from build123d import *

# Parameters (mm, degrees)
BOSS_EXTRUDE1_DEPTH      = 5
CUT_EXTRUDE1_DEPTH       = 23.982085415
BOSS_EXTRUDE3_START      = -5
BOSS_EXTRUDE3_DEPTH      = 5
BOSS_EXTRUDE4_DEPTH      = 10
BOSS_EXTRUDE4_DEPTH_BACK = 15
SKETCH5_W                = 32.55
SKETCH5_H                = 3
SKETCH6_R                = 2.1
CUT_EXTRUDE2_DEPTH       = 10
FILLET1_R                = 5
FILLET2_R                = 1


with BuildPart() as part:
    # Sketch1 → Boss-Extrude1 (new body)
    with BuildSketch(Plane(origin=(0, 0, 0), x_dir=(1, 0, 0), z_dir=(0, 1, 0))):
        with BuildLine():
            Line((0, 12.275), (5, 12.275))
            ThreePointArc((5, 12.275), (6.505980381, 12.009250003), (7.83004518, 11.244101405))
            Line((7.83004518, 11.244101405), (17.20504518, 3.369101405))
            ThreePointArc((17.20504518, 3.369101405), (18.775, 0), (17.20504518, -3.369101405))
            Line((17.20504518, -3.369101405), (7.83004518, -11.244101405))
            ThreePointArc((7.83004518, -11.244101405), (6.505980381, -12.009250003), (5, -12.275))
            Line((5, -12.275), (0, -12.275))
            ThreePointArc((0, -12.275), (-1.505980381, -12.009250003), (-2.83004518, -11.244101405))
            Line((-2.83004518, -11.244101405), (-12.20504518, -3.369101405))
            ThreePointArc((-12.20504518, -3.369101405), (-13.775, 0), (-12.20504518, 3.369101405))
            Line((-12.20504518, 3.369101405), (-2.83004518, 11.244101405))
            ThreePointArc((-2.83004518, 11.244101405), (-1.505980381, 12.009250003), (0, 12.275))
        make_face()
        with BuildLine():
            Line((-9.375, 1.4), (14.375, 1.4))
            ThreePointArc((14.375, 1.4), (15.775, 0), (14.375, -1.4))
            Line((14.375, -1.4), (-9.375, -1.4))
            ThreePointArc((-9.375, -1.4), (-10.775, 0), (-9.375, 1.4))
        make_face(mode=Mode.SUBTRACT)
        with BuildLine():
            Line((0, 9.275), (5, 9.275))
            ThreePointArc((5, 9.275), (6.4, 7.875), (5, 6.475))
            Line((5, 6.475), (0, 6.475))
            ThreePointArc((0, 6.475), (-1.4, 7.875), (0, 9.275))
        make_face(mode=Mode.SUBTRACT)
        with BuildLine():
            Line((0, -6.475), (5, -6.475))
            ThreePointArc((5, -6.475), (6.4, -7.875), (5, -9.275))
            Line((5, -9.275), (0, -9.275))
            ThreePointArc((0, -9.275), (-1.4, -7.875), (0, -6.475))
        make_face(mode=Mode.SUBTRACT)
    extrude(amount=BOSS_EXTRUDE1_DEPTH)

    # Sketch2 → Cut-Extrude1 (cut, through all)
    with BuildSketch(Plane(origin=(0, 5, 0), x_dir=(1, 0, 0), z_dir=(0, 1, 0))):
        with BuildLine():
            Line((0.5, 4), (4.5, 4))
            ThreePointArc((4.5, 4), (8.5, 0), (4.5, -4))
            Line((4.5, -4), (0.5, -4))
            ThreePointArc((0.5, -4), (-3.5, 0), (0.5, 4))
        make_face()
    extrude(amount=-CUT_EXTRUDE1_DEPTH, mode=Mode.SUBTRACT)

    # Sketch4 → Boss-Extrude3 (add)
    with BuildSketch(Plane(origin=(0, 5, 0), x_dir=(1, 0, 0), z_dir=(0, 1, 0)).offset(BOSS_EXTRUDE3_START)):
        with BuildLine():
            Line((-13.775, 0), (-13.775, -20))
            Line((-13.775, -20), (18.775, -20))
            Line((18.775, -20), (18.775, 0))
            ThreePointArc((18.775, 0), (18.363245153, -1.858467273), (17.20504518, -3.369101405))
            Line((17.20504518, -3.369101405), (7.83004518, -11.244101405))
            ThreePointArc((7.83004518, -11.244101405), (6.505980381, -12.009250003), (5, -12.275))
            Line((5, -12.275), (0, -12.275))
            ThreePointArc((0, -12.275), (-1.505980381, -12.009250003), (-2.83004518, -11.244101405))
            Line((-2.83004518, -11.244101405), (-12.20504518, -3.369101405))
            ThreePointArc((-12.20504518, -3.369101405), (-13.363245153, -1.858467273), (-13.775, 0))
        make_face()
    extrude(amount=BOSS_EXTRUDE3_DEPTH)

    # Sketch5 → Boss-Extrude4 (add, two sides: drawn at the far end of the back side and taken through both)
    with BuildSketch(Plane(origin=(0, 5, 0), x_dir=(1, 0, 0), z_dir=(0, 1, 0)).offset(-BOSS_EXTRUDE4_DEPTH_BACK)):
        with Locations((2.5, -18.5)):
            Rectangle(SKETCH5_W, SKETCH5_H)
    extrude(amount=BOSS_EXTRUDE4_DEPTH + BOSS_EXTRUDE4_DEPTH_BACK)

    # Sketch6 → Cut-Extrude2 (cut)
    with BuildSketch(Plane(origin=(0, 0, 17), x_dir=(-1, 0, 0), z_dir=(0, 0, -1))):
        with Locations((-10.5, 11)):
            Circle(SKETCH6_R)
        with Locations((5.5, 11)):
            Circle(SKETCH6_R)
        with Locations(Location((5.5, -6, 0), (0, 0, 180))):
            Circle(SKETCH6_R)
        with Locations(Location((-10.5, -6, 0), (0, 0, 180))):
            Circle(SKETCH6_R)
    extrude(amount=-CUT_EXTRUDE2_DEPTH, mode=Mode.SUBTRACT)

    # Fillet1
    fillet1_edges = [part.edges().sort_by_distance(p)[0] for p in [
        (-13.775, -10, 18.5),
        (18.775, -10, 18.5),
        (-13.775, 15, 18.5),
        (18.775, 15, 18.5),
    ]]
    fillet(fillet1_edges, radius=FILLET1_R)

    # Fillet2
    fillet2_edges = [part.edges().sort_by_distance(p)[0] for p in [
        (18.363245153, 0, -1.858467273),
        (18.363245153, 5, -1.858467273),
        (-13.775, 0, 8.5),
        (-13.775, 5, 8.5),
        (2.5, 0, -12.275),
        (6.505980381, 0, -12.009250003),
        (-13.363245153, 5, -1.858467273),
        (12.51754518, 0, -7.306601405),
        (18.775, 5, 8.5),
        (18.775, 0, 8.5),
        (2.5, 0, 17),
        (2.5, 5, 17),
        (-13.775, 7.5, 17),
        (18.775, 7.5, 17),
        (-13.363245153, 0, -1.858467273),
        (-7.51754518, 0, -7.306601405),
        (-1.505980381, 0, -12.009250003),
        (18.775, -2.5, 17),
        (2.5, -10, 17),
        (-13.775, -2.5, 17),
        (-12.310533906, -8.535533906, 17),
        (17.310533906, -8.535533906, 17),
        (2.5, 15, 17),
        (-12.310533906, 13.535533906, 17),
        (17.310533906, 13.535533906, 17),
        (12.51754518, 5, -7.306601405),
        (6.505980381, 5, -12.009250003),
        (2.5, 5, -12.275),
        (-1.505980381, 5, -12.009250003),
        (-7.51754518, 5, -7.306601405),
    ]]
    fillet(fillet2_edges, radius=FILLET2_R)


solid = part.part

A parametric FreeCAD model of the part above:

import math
import FreeCAD as App
import Part
import Sketcher


def edges_at(feature, points):
    """Names of the edges that pass closest to the given points."""
    edges = feature.Shape.Edges
    near = lambda p: min(range(len(edges)), key=lambda i: edges[i].distToShape(Part.Vertex(*p))[0])
    return sorted({f"Edge{near(p) + 1}" for p in points})

doc = App.newDocument("Part")
body = doc.addObject("PartDesign::Body", "Body")

# Sketch on XZ plane
sketch1 = doc.addObject("Sketcher::SketchObject", "Sketch")
body.addObject(sketch1)
sketch1.AttachmentSupport = (doc.XZ_Plane, [""])
sketch1.MapMode = "FlatFace"
sketch1.addGeometry([
    Part.LineSegment(App.Vector(5, -12.3, 0), App.Vector(0, -12.3, 0)),  # 0
    Part.ArcOfCircle(Part.Circle(App.Vector(0, -7.9, 0), App.Vector(0, 0, 1), 4.4), math.radians(-130), math.radians(-90)),  # 1
    Part.LineSegment(App.Vector(-2.8, -11.2, 0), App.Vector(-12.2, -3.4, 0)),  # 2
    Part.ArcOfCircle(Part.Circle(App.Vector(-9.4, 0, 0), App.Vector(0, 0, 1), 4.4), math.radians(130), math.radians(230)),  # 3
    Part.LineSegment(App.Vector(-12.2, 3.4, 0), App.Vector(-2.8, 11.2, 0)),  # 4
    Part.ArcOfCircle(Part.Circle(App.Vector(0, 7.9, 0), App.Vector(0, 0, 1), 4.4), math.radians(90), math.radians(130)),  # 5
    Part.LineSegment(App.Vector(0, 12.3, 0), App.Vector(5, 12.3, 0)),  # 6
    Part.ArcOfCircle(Part.Circle(App.Vector(5, 7.9, 0), App.Vector(0, 0, 1), 4.4), math.radians(50), math.radians(90)),  # 7
    Part.LineSegment(App.Vector(7.8, 11.2, 0), App.Vector(17.2, 3.4, 0)),  # 8
    Part.ArcOfCircle(Part.Circle(App.Vector(14.4, 0, 0), App.Vector(0, 0, 1), 4.4), math.radians(-50), math.radians(50)),  # 9
    Part.LineSegment(App.Vector(17.2, -3.4, 0), App.Vector(7.8, -11.2, 0)),  # 10
    Part.ArcOfCircle(Part.Circle(App.Vector(5, -7.9, 0), App.Vector(0, 0, 1), 4.4), math.radians(-90), math.radians(-50)),  # 11
    Part.LineSegment(App.Vector(0, 6.5, 0), App.Vector(5, 6.5, 0)),  # 12
    Part.ArcOfCircle(Part.Circle(App.Vector(5, 7.9, 0), App.Vector(0, 0, 1), 1.4), math.radians(-90), math.radians(90)),  # 13
    Part.LineSegment(App.Vector(5, 9.3, 0), App.Vector(0, 9.3, 0)),  # 14
    Part.ArcOfCircle(Part.Circle(App.Vector(0, 7.9, 0), App.Vector(0, 0, 1), 1.4), math.radians(90), math.radians(270)),  # 15
    Part.LineSegment(App.Vector(-9.4, -1.4, 0), App.Vector(14.4, -1.4, 0)),  # 16
    Part.ArcOfCircle(Part.Circle(App.Vector(14.4, 0, 0), App.Vector(0, 0, 1), 1.4), math.radians(-90), math.radians(90)),  # 17
    Part.LineSegment(App.Vector(14.4, 1.4, 0), App.Vector(-9.4, 1.4, 0)),  # 18
    Part.ArcOfCircle(Part.Circle(App.Vector(-9.4, 0, 0), App.Vector(0, 0, 1), 1.4), math.radians(90), math.radians(270)),  # 19
    Part.LineSegment(App.Vector(0, -9.3, 0), App.Vector(5, -9.3, 0)),  # 20
    Part.ArcOfCircle(Part.Circle(App.Vector(5, -7.9, 0), App.Vector(0, 0, 1), 1.4), math.radians(-90), math.radians(90)),  # 21
    Part.LineSegment(App.Vector(5, -6.5, 0), App.Vector(0, -6.5, 0)),  # 22
    Part.ArcOfCircle(Part.Circle(App.Vector(0, -7.9, 0), App.Vector(0, 0, 1), 1.4), math.radians(90), math.radians(270)),  # 23
], False)
sketch1.addConstraint([
    Sketcher.Constraint("Tangent", 0, 2, 1, 2),
    Sketcher.Constraint("Tangent", 1, 1, 2, 1),
    Sketcher.Constraint("Tangent", 2, 2, 3, 2),
    Sketcher.Constraint("Tangent", 3, 1, 4, 1),
    Sketcher.Constraint("Tangent", 4, 2, 5, 2),
    Sketcher.Constraint("Tangent", 5, 1, 6, 1),
    Sketcher.Constraint("Tangent", 6, 2, 7, 2),
    Sketcher.Constraint("Tangent", 7, 1, 8, 1),
    Sketcher.Constraint("Tangent", 8, 2, 9, 2),
    Sketcher.Constraint("Tangent", 9, 1, 10, 1),
    Sketcher.Constraint("Tangent", 10, 2, 11, 2),
    Sketcher.Constraint("Tangent", 11, 1, 0, 1),
    Sketcher.Constraint("Tangent", 12, 2, 13, 1),
    Sketcher.Constraint("Tangent", 13, 2, 14, 1),
    Sketcher.Constraint("Tangent", 14, 2, 15, 1),
    Sketcher.Constraint("Tangent", 15, 2, 12, 1),
    Sketcher.Constraint("Tangent", 16, 2, 17, 1),
    Sketcher.Constraint("Tangent", 17, 2, 18, 1),
    Sketcher.Constraint("Tangent", 18, 2, 19, 1),
    Sketcher.Constraint("Tangent", 19, 2, 16, 1),
    Sketcher.Constraint("Tangent", 20, 2, 21, 1),
    Sketcher.Constraint("Tangent", 21, 2, 22, 1),
    Sketcher.Constraint("Tangent", 22, 2, 23, 1),
    Sketcher.Constraint("Tangent", 23, 2, 20, 1),
    Sketcher.Constraint("Horizontal", 0),
    Sketcher.Constraint("Horizontal", 6),
    Sketcher.Constraint("Horizontal", 12),
    Sketcher.Constraint("Horizontal", 14),
    Sketcher.Constraint("Horizontal", 16),
    Sketcher.Constraint("Horizontal", 18),
    Sketcher.Constraint("Horizontal", 20),
    Sketcher.Constraint("Horizontal", 22),
    Sketcher.Constraint("Coincident", 13, 3, 7, 3),
    Sketcher.Constraint("Coincident", 15, 3, 5, 3),
    Sketcher.Constraint("Coincident", 17, 3, 9, 3),
    Sketcher.Constraint("Coincident", 19, 3, 3, 3),
    Sketcher.Constraint("Coincident", 21, 3, 11, 3),
    Sketcher.Constraint("Coincident", 23, 3, 1, 3),
    Sketcher.Constraint("Equal", 1, 3),
    Sketcher.Constraint("Equal", 3, 5),
    Sketcher.Constraint("Equal", 7, 9),
    Sketcher.Constraint("Equal", 15, 17),
    Sketcher.Constraint("Equal", 19, 21),
    Sketcher.Constraint("Symmetric", 1, 3, 5, 3, -1, 1),
    Sketcher.Constraint("Symmetric", 2, 2, 3, 1, -1),
    Sketcher.Constraint("Parallel", 2, 8),
    Sketcher.Constraint("Parallel", 4, 10),
    Sketcher.Constraint("Radius", 1, 4.4),
    Sketcher.Constraint("Radius", 13, 1.4),
    Sketcher.Constraint("DistanceX", 0, 2, 0, 1, 5.0),
    Sketcher.Constraint("DistanceX", 16, 1, 16, 2, 23.75),
    Sketcher.Constraint("DistanceY", 1, 3, 5, 3, 15.75),
])
pad1 = doc.addObject("PartDesign::Pad", "Pad")
body.addObject(pad1)
pad1.Profile = sketch1
pad1.Length = 5
pad1.Reversed = True

# Sketch on XZ plane
sketch2 = doc.addObject("Sketcher::SketchObject", "Sketch001")
body.addObject(sketch2)
sketch2.AttachmentSupport = (doc.XZ_Plane, [""])
sketch2.MapMode = "FlatFace"
sketch2.AttachmentOffset = App.Placement(App.Vector(0, 0, -5), App.Rotation())
sketch2.addGeometry([
    Part.LineSegment(App.Vector(4.5, -4, 0), App.Vector(0.5, -4, 0)),
    Part.ArcOfCircle(Part.Circle(App.Vector(0.5, 0, 0), App.Vector(0, 0, 1), 4), math.radians(90), math.radians(270)),
    Part.LineSegment(App.Vector(0.5, 4, 0), App.Vector(4.5, 4, 0)),
    Part.ArcOfCircle(Part.Circle(App.Vector(4.5, 0, 0), App.Vector(0, 0, 1), 4), math.radians(-90), math.radians(90)),
], False)
sketch2.addConstraint([
    Sketcher.Constraint("Tangent", 0, 2, 1, 2),
    Sketcher.Constraint("Tangent", 1, 1, 2, 1),
    Sketcher.Constraint("Tangent", 2, 2, 3, 2),
    Sketcher.Constraint("Tangent", 3, 1, 0, 1),
    Sketcher.Constraint("Horizontal", 0),
    Sketcher.Constraint("Horizontal", 2),
    Sketcher.Constraint("PointOnObject", 1, 3, -1),
    Sketcher.Constraint("Radius", 1, 4.0),
    Sketcher.Constraint("DistanceX", 0, 2, 0, 1, 4.0),
    Sketcher.Constraint("DistanceX", -1, 1, 1, 3, 0.5),
])
pocket1 = doc.addObject("PartDesign::Pocket", "Pocket")
body.addObject(pocket1)
pocket1.Profile = sketch2
pocket1.Type = "ThroughAll"
pocket1.Reversed = True

# Sketch on XZ plane
sketch3 = doc.addObject("Sketcher::SketchObject", "Sketch002")
body.addObject(sketch3)
sketch3.AttachmentSupport = (doc.XZ_Plane, [""])
sketch3.MapMode = "FlatFace"
sketch3.addGeometry([
    Part.LineSegment(App.Vector(-13.8, 0, 0), App.Vector(-13.8, 20, 0)),  # 0
    Part.LineSegment(App.Vector(-13.8, 20, 0), App.Vector(18.8, 20, 0)),  # 1
    Part.LineSegment(App.Vector(18.8, 20, 0), App.Vector(18.8, 0, 0)),  # 2
    Part.ArcOfCircle(Part.Circle(App.Vector(14.4, 0, 0), App.Vector(0, 0, 1), 4.4), math.radians(0), math.radians(50)),  # 3
    Part.LineSegment(App.Vector(17.2, 3.4, 0), App.Vector(7.8, 11.2, 0)),  # 4
    Part.ArcOfCircle(Part.Circle(App.Vector(5, 7.9, 0), App.Vector(0, 0, 1), 4.4), math.radians(50), math.radians(90)),  # 5
    Part.LineSegment(App.Vector(5, 12.3, 0), App.Vector(0, 12.3, 0)),  # 6
    Part.ArcOfCircle(Part.Circle(App.Vector(0, 7.9, 0), App.Vector(0, 0, 1), 4.4), math.radians(90), math.radians(130)),  # 7
    Part.LineSegment(App.Vector(-2.8, 11.2, 0), App.Vector(-12.2, 3.4, 0)),  # 8
    Part.ArcOfCircle(Part.Circle(App.Vector(-9.4, 0, 0), App.Vector(0, 0, 1), 4.4), math.radians(130), math.radians(180)),  # 9
], False)
sketch3.addConstraint([
    Sketcher.Constraint("Coincident", 0, 2, 1, 1),
    Sketcher.Constraint("Coincident", 1, 2, 2, 1),
    Sketcher.Constraint("Tangent", 2, 2, 3, 1),
    Sketcher.Constraint("Tangent", 3, 2, 4, 1),
    Sketcher.Constraint("Tangent", 4, 2, 5, 1),
    Sketcher.Constraint("Tangent", 5, 2, 6, 1),
    Sketcher.Constraint("Tangent", 6, 2, 7, 1),
    Sketcher.Constraint("Tangent", 7, 2, 8, 1),
    Sketcher.Constraint("Tangent", 8, 2, 9, 1),
    Sketcher.Constraint("Tangent", 9, 2, 0, 1),
    Sketcher.Constraint("Vertical", 0),
    Sketcher.Constraint("Horizontal", 1),
    Sketcher.Constraint("Vertical", 2),
    Sketcher.Constraint("Horizontal", 6),
    Sketcher.Constraint("Equal", 3, 5),
    Sketcher.Constraint("Equal", 5, 7),
    Sketcher.Constraint("Equal", 7, 9),
    Sketcher.Constraint("PointOnObject", 3, 3, -1),
    Sketcher.Constraint("PointOnObject", 7, 3, -2),
    Sketcher.Constraint("PointOnObject", 9, 3, -1),
    Sketcher.Constraint("Horizontal", 4, 2, 7, 2),
    Sketcher.Constraint("Radius", 3, 4.4),
    Sketcher.Constraint("DistanceX", 6, 2, 6, 1, 5.0),
    Sketcher.Constraint("DistanceY", 0, 1, 0, 2, 20.0),
    Sketcher.Constraint("DistanceX", 1, 1, 1, 2, 32.55),
    Sketcher.Constraint("DistanceY", -1, 1, 5, 3, 7.875),
])
pad2 = doc.addObject("PartDesign::Pad", "Pad001")
body.addObject(pad2)
pad2.Profile = sketch3
pad2.Length = 5
pad2.Reversed = True

# Sketch on XZ plane
sketch4 = doc.addObject("Sketcher::SketchObject", "Sketch003")
body.addObject(sketch4)
sketch4.AttachmentSupport = (doc.XZ_Plane, [""])
sketch4.MapMode = "FlatFace"
sketch4.AttachmentOffset = App.Placement(App.Vector(0, 0, -5), App.Rotation())
sketch4.addGeometry([
    Part.LineSegment(App.Vector(-13.8, 17, 0), App.Vector(-13.8, 20, 0)),
    Part.LineSegment(App.Vector(-13.8, 20, 0), App.Vector(18.8, 20, 0)),
    Part.LineSegment(App.Vector(18.8, 20, 0), App.Vector(18.8, 17, 0)),
    Part.LineSegment(App.Vector(18.8, 17, 0), App.Vector(-13.8, 17, 0)),
], False)
sketch4.addConstraint([
    Sketcher.Constraint("Coincident", 0, 2, 1, 1),
    Sketcher.Constraint("Coincident", 1, 2, 2, 1),
    Sketcher.Constraint("Coincident", 2, 2, 3, 1),
    Sketcher.Constraint("Coincident", 3, 2, 0, 1),
    Sketcher.Constraint("Vertical", 0),
    Sketcher.Constraint("Horizontal", 1),
    Sketcher.Constraint("Vertical", 2),
    Sketcher.Constraint("Horizontal", 3),
    Sketcher.Constraint("DistanceY", 0, 1, 0, 2, 3.0),
    Sketcher.Constraint("DistanceY", -1, 1, 0, 2, 20.0),
    Sketcher.Constraint("DistanceX", 1, 1, 1, 2, 32.55),
    Sketcher.Constraint("DistanceX", 0, 2, -1, 1, 13.775),
])
pad3 = doc.addObject("PartDesign::Pad", "Pad002")
body.addObject(pad3)
pad3.Profile = sketch4
pad3.Type = "TwoLengths"
pad3.Length = 10
pad3.Length2 = 15
pad3.Reversed = True

# Sketch on XY plane
sketch5 = doc.addObject("Sketcher::SketchObject", "Sketch004")
body.addObject(sketch5)
sketch5.AttachmentSupport = (doc.XY_Plane, [""])
sketch5.MapMode = "FlatFace"
sketch5.AttachmentOffset = App.Placement(App.Vector(0, 0, 17), App.Rotation())
sketch5.addGeometry([
    Part.Circle(App.Vector(10.5, 11, 0), App.Vector(0, 0, 1), 2.1),
    Part.Circle(App.Vector(-5.5, 11, 0), App.Vector(0, 0, 1), 2.1),
    Part.Circle(App.Vector(-5.5, -6, 0), App.Vector(0, 0, 1), 2.1),
    Part.Circle(App.Vector(10.5, -6, 0), App.Vector(0, 0, 1), 2.1),
], False)
sketch5.addConstraint([
    Sketcher.Constraint("Equal", 0, 1),
    Sketcher.Constraint("Equal", 1, 2),
    Sketcher.Constraint("Equal", 2, 3),
    Sketcher.Constraint("Horizontal", 0, 3, 1, 3),
    Sketcher.Constraint("Horizontal", 2, 3, 3, 3),
    Sketcher.Constraint("Vertical", 1, 3, 2, 3),
    Sketcher.Constraint("Vertical", 0, 3, 3, 3),
    Sketcher.Constraint("Diameter", 0, 4.2),
    Sketcher.Constraint("DistanceY", -1, 1, 0, 3, 11.0),
    Sketcher.Constraint("DistanceY", 2, 3, -1, 1, 6.0),
    Sketcher.Constraint("DistanceX", 1, 3, 0, 3, 16.0),
    Sketcher.Constraint("DistanceX", -1, 1, 0, 3, 10.5),
])
pocket2 = doc.addObject("PartDesign::Pocket", "Pocket001")
body.addObject(pocket2)
pocket2.Profile = sketch5
pocket2.Length = 10
pocket2.Reversed = True
doc.recompute()

fillet = doc.addObject("PartDesign::Fillet", "Fillet")
body.addObject(fillet)
fillet.Base = (pocket2, edges_at(pocket2, [
    (-13.775, -10, 18.5),
    (18.775, -10, 18.5),
    (-13.775, 15, 18.5),
    (18.775, 15, 18.5),
]))
fillet.Radius = 5
doc.recompute()

fillet2 = doc.addObject("PartDesign::Fillet", "Fillet001")
body.addObject(fillet2)
fillet2.Base = (fillet, edges_at(fillet, [
    (18.363, 0, -1.858),
    (18.363, 5, -1.858),
    (-13.775, 0, 8.5),
    (-13.775, 5, 8.5),
    (2.5, 0, -12.275),
    (6.506, 0, -12.009),
    (-13.363, 5, -1.858),
    (12.518, 0, -7.307),
    (18.775, 5, 8.5),
    (18.775, 0, 8.5),
    (2.5, 0, 17),
    (2.5, 5, 17),
    (-13.775, 7.5, 17),
    (18.775, 7.5, 17),
    (-13.363, 0, -1.858),
    (-7.518, 0, -7.307),
    (-1.506, 0, -12.009),
    (18.775, -2.5, 17),
    (2.5, -10, 17),
    (-13.775, -2.5, 17),
    (-12.311, -8.536, 17),
    (17.311, -8.536, 17),
    (2.5, 15, 17),
    (-12.311, 13.536, 17),
    (17.311, 13.536, 17),
    (12.518, 5, -7.307),
    (6.506, 5, -12.009),
    (2.5, 5, -12.275),
    (-1.506, 5, -12.009),
    (-7.518, 5, -7.307),
]))
fillet2.Radius = 1

doc.recompute()
